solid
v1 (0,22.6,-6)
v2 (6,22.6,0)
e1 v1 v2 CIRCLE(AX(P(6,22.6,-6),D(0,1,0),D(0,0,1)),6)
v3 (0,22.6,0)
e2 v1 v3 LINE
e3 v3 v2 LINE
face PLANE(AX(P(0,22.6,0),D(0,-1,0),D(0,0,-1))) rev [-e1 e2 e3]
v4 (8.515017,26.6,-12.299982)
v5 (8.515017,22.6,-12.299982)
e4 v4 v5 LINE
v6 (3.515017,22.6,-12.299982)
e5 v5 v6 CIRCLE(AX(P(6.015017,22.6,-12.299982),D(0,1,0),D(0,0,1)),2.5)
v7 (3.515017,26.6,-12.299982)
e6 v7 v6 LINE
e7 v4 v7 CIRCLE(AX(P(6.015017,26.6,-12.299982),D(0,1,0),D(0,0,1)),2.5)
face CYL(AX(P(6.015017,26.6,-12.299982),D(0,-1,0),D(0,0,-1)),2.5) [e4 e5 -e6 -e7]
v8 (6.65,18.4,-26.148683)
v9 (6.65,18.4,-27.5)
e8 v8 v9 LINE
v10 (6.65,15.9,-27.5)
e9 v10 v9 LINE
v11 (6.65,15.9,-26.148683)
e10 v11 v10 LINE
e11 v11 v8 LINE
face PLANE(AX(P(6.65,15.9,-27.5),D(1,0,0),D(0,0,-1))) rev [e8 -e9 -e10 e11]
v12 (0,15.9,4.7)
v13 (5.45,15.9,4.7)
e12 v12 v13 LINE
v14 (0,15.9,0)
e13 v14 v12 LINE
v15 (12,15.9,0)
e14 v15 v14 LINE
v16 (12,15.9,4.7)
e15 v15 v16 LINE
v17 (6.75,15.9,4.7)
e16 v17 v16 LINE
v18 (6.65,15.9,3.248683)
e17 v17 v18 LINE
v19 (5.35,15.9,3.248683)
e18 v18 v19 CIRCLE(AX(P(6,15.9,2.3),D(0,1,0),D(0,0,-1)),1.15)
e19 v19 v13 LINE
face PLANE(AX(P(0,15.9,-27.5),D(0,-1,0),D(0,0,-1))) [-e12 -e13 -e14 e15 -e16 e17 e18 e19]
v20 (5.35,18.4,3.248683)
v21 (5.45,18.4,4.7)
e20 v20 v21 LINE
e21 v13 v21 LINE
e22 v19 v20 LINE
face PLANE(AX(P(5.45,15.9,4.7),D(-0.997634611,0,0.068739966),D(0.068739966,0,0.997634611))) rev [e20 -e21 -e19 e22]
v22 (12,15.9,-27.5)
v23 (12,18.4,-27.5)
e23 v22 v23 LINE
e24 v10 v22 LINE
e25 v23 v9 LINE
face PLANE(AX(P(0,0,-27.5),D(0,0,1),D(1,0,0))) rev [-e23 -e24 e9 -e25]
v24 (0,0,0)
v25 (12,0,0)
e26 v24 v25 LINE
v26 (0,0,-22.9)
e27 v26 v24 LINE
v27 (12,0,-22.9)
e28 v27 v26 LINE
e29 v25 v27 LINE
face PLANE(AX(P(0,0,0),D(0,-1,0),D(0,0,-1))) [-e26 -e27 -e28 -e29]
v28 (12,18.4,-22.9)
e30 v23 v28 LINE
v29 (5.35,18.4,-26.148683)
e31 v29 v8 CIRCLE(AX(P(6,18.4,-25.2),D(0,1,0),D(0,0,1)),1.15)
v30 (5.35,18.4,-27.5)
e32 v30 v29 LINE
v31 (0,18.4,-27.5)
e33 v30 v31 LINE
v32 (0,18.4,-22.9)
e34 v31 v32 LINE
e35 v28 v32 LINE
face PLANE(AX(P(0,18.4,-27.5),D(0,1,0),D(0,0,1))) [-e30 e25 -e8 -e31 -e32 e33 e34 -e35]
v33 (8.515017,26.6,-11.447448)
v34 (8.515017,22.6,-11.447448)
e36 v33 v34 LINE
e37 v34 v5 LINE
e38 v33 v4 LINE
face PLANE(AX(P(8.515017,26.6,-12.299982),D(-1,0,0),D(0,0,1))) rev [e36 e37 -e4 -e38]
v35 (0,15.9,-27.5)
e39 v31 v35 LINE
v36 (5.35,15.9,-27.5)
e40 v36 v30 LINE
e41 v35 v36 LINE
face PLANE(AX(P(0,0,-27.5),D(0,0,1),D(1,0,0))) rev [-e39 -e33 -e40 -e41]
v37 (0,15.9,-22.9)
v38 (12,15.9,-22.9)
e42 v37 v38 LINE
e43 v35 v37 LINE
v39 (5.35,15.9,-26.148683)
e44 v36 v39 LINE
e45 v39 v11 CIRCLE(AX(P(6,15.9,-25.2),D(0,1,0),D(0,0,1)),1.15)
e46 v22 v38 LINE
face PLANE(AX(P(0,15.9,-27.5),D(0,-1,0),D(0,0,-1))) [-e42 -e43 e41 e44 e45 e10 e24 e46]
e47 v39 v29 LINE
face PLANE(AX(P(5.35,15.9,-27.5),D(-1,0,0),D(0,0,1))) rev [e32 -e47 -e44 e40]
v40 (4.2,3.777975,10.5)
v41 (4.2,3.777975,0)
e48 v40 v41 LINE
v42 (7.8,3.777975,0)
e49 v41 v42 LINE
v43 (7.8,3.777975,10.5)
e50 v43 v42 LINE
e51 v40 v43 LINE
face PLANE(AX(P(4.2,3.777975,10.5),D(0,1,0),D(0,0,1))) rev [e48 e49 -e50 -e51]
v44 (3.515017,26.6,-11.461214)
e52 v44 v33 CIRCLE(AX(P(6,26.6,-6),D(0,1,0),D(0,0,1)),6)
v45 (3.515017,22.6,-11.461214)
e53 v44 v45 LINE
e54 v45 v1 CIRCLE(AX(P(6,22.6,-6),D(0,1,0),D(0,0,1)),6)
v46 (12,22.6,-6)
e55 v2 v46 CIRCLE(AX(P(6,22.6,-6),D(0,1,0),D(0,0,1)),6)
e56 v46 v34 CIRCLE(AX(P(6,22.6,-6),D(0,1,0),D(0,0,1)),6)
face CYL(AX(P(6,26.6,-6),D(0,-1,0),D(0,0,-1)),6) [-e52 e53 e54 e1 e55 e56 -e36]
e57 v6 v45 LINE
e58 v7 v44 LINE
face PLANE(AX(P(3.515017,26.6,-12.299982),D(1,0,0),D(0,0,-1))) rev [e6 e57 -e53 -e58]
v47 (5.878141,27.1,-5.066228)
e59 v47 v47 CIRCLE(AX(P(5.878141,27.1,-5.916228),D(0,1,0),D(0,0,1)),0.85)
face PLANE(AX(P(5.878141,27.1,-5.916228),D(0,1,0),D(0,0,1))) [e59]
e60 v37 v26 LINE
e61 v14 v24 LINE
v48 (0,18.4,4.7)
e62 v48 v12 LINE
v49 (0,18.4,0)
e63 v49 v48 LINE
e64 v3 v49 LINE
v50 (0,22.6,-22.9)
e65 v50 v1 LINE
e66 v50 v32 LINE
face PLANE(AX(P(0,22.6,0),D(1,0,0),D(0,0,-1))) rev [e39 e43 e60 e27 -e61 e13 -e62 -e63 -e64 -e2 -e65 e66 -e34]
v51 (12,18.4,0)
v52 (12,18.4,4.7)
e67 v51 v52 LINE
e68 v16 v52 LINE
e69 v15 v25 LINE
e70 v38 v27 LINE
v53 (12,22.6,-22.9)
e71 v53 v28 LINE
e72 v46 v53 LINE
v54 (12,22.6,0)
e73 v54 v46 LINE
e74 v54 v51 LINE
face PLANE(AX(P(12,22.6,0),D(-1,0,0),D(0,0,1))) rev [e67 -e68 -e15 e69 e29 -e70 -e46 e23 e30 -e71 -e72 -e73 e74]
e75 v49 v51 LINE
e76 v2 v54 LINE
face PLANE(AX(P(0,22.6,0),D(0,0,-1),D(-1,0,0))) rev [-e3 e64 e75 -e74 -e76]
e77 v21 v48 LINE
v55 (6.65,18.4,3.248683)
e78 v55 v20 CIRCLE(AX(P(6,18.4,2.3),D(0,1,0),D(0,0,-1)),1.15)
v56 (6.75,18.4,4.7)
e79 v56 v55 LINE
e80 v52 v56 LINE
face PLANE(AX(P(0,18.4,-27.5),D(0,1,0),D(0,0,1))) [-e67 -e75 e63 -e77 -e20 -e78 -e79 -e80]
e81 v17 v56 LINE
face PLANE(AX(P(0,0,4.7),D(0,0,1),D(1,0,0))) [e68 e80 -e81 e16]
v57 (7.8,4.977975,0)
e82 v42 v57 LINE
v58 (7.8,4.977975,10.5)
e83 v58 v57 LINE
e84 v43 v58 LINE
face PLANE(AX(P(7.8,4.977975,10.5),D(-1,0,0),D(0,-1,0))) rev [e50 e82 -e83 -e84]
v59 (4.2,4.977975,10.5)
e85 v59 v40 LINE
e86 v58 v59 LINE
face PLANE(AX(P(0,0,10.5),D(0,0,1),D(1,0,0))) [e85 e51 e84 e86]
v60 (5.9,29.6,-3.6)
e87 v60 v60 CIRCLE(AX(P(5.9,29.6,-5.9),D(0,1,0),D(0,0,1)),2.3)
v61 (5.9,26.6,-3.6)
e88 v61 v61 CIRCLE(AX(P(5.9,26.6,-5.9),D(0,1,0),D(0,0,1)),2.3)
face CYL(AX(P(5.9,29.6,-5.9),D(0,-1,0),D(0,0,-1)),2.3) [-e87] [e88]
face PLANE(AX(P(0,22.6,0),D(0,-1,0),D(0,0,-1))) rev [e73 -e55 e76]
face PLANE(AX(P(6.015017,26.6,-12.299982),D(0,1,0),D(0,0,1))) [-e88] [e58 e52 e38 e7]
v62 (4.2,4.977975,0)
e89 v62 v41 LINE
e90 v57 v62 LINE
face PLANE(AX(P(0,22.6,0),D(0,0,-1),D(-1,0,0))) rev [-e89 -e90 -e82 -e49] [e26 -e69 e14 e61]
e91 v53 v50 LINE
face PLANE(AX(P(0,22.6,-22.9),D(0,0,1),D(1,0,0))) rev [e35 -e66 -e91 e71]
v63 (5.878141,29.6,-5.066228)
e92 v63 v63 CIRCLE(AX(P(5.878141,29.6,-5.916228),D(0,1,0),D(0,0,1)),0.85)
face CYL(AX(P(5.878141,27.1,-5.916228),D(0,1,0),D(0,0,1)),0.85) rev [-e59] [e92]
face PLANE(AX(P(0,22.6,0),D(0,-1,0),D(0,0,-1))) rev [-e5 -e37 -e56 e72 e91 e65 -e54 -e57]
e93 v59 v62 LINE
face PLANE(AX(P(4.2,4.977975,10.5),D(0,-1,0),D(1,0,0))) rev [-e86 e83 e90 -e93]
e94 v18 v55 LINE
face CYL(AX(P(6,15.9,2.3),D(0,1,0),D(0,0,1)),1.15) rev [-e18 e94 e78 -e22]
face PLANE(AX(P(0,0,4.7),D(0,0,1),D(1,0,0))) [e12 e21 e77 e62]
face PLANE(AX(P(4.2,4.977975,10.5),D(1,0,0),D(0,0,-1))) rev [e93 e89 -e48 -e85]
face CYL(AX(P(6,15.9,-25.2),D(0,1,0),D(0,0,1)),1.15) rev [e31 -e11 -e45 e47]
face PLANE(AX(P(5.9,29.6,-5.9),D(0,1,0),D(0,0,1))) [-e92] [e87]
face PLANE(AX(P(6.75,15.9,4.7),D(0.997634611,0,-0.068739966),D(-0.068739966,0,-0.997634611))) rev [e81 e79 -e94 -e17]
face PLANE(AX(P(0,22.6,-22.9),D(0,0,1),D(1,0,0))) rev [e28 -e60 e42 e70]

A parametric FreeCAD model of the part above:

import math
import FreeCAD as App
import Part
import Sketcher

doc = App.newDocument("Part")
body = doc.addObject("PartDesign::Body", "Body")

sketch1 = doc.addObject("Sketcher::SketchObject", "Sketch")
body.addObject(sketch1)
sketch1.AttachmentSupport = (doc.XZ_Plane, [""])
sketch1.MapMode = "FlatFace"
sketch1.addGeometry([
    Part.LineSegment(App.Vector(0, -23, 0), App.Vector(0, 0, 0)),
    Part.LineSegment(App.Vector(0, 0, 0), App.Vector(12, 0, 0)),
    Part.LineSegment(App.Vector(12, 0, 0), App.Vector(12, -23, 0)),
    Part.LineSegment(App.Vector(12, -23, 0), App.Vector(0, -23, 0)),
], False)
sketch1.addConstraint([
    Sketcher.Constraint("Coincident", 0, 2, 1, 1),
    Sketcher.Constraint("Coincident", 1, 2, 2, 1),
    Sketcher.Constraint("Coincident", 2, 2, 3, 1),
    Sketcher.Constraint("Coincident", 3, 2, 0, 1),
    Sketcher.Constraint("Vertical", 0),
    Sketcher.Constraint("Horizontal", 1),
    Sketcher.Constraint("Vertical", 2),
    Sketcher.Constraint("Horizontal", 3),
    Sketcher.Constraint("Coincident", 0, 2, -1, 1),
    Sketcher.Constraint("DistanceX", 1, 1, 1, 2, 12.0),
    Sketcher.Constraint("DistanceY", 0, 1, 0, 2, 22.9),
])
pad1 = doc.addObject("PartDesign::Pad", "Pad")
body.addObject(pad1)
pad1.Profile = sketch1
pad1.Length = 22.6
pad1.Reversed = True

sketch2 = doc.addObject("Sketcher::SketchObject", "Sketch001")
body.addObject(sketch2)
sketch2.AttachmentSupport = (doc.XY_Plane, [""])
sketch2.MapMode = "FlatFace"
sketch2.AttachmentOffset = App.Placement(App.Vector(0, 0, 4.7), App.Rotation())
sketch2.addGeometry([
    Part.LineSegment(App.Vector(0, 18.4, 0), App.Vector(0, 15.9, 0)),
    Part.LineSegment(App.Vector(0, 15.9, 0), App.Vector(12, 15.9, 0)),
    Part.LineSegment(App.Vector(12, 15.9, 0), App.Vector(12, 18.4, 0)),
    Part.LineSegment(App.Vector(12, 18.4, 0), App.Vector(0, 18.4, 0)),
], False)
sketch2.addConstraint([
    Sketcher.Constraint("Coincident", 0, 2, 1, 1),
    Sketcher.Constraint("Coincident", 1, 2, 2, 1),
    Sketcher.Constraint("Coincident", 2, 2, 3, 1),
    Sketcher.Constraint("Coincident", 3, 2, 0, 1),
    Sketcher.Constraint("Vertical", 0),
    Sketcher.Constraint("Horizontal", 1),
    Sketcher.Constraint("Vertical", 2),
    Sketcher.Constraint("Horizontal", 3),
    Sketcher.Constraint("PointOnObject", 0, 2, -2),
    Sketcher.Constraint("DistanceX", 1, 1, 1, 2, 12.0),
    Sketcher.Constraint("DistanceY", 0, 2, 0, 1, 2.5),
    Sketcher.Constraint("DistanceY", -1, 1, 0, 2, 15.9),
])
pad2 = doc.addObject("PartDesign::Pad", "Pad001")
body.addObject(pad2)
pad2.Profile = sketch2
pad2.Length = 32.2
pad2.Reversed = True

sketch3 = doc.addObject("Sketcher::SketchObject", "Sketch002")
body.addObject(sketch3)
sketch3.AttachmentSupport = (doc.XZ_Plane, [""])
sketch3.MapMode = "FlatFace"
sketch3.AttachmentOffset = App.Placement(App.Vector(0, 0, -22.6), App.Rotation())
sketch3.addGeometry([
    Part.LineSegment(App.Vector(3.5, -12.3, 0), App.Vector(3.5, -11.5, 0)),
    Part.ArcOfCircle(Part.Circle(App.Vector(6, -6, 0), App.Vector(0, 0, 1), 6), math.radians(-65), math.radians(246)),
    Part.LineSegment(App.Vector(8.5, -11.4, 0), App.Vector(8.5, -12.3, 0)),
    Part.ArcOfCircle(Part.Circle(App.Vector(6, -12.3, 0), App.Vector(0, 0, 1), 2.5), math.radians(180), math.radians(360)),
], False)
sketch3.addConstraint([
    Sketcher.Constraint("Coincident", 0, 2, 1, 2),
    Sketcher.Constraint("Coincident", 1, 1, 2, 1),
    Sketcher.Constraint("Tangent", 2, 2, 3, 2),
    Sketcher.Constraint("Tangent", 3, 1, 0, 1),
    Sketcher.Constraint("Vertical", 0),
    Sketcher.Constraint("Vertical", 2),
    Sketcher.Constraint("Radius", 1, 6.0),
    Sketcher.Constraint("Radius", 3, 2.5),
    Sketcher.Constraint("DistanceX", -1, 1, 1, 3, 6.0),
    Sketcher.Constraint("DistanceY", 1, 3, -1, 1, 6.0),
    Sketcher.Constraint("DistanceY", 0, 1, 0, 2, 0.838768),
    Sketcher.Constraint("DistanceY", 2, 2, 2, 1, 0.852534),
])
pad3 = doc.addObject("PartDesign::Pad", "Pad002")
body.addObject(pad3)
pad3.Profile = sketch3
pad3.Length = 4
pad3.Reversed = True

sketch4 = doc.addObject("Sketcher::SketchObject", "Sketch003")
body.addObject(sketch4)
sketch4.AttachmentSupport = (doc.XZ_Plane, [""])
sketch4.MapMode = "FlatFace"
sketch4.AttachmentOffset = App.Placement(App.Vector(0, 0, -26.6), App.Rotation())
sketch4.addGeometry(Part.Circle(App.Vector(5.9, -5.9, 0), App.Vector(0, 0, 1), 2.3), False)
sketch4.addConstraint([
    Sketcher.Constraint("Diameter", 0, 4.6),
    Sketcher.Constraint("DistanceX", -1, 1, 0, 3, 5.9),
    Sketcher.Constraint("DistanceY", 0, 3, -1, 1, 5.9),
])
pad4 = doc.addObject("PartDesign::Pad", "Pad003")
body.addObject(pad4)
pad4.Profile = sketch4
pad4.Length = 3
pad4.Reversed = True

sketch5 = doc.addObject("Sketcher::SketchObject", "Sketch004")
body.addObject(sketch5)
sketch5.AttachmentSupport = (doc.XZ_Plane, [""])
sketch5.MapMode = "FlatFace"
sketch5.AttachmentOffset = App.Placement(App.Vector(0, 0, -18.4), App.Rotation())
sketch5.addGeometry([
    Part.LineSegment(App.Vector(6.7, -27.5, 0), App.Vector(5.3, -27.5, 0)),
    Part.LineSegment(App.Vector(5.3, -27.5, 0), App.Vector(5.3, -26.1, 0)),
    Part.ArcOfCircle(Part.Circle(App.Vector(6, -25.2, 0), App.Vector(0, 0, 1), 1.1), math.radians(-56), math.radians(236)),
    Part.LineSegment(App.Vector(6.7, -26.1, 0), App.Vector(6.7, -27.5, 0)),
    Part.LineSegment(App.Vector(6.8, 4.7, 0), App.Vector(6.7, 3.2, 0)),
    Part.ArcOfCircle(Part.Circle(App.Vector(6, 2.3, 0), App.Vector(0, 0, 1), 1.1), math.radians(124), math.radians(416)),
    Part.LineSegment(App.Vector(5.3, 3.2, 0), App.Vector(5.5, 4.7, 0)),
    Part.LineSegment(App.Vector(5.5, 4.7, 0), App.Vector(6.8, 4.7, 0)),
], False)
sketch5.addConstraint([
    Sketcher.Constraint("Coincident", 0, 2, 1, 1),
    Sketcher.Constraint("Coincident", 1, 2, 2, 2),
    Sketcher.Constraint("Coincident", 2, 1, 3, 1),
    Sketcher.Constraint("Coincident", 3, 2, 0, 1),
    Sketcher.Constraint("Coincident", 4, 2, 5, 2),
    Sketcher.Constraint("Coincident", 5, 1, 6, 1),
    Sketcher.Constraint("Coincident", 6, 2, 7, 1),
    Sketcher.Constraint("Coincident", 7, 2, 4, 1),
    Sketcher.Constraint("Horizontal", 0),
    Sketcher.Constraint("Vertical", 1),
    Sketcher.Constraint("Vertical", 3),
    Sketcher.Constraint("Horizontal", 7),
    Sketcher.Constraint("Equal", 2, 5),
    Sketcher.Constraint("Parallel", 4, 6),
    Sketcher.Constraint("Horizontal", 1, 2, 2, 1),
    Sketcher.Constraint("Horizontal", 4, 2, 5, 1),
    Sketcher.Constraint("Vertical", 2, 3, 5, 3),
    Sketcher.Constraint("Vertical", 3, 2, 4, 2),
    Sketcher.Constraint("Radius", 2, 1.15),
    Sketcher.Constraint("DistanceX", 0, 2, 0, 1, 1.3),
    Sketcher.Constraint("DistanceX", -1, 1, 2, 3, 6.0),
    Sketcher.Constraint("DistanceY", 2, 3, -1, 1, 25.2),
    Sketcher.Constraint("DistanceY", -1, 1, 5, 3, 2.3),
    Sketcher.Constraint("DistanceY", 0, 2, -1, 1, 27.5),
    Sketcher.Constraint("DistanceY", -1, 1, 6, 2, 4.7),
    Sketcher.Constraint("DistanceX", 5, 1, 6, 2, 0.1),
])
pocket1 = doc.addObject("PartDesign::Pocket", "Pocket")
body.addObject(pocket1)
pocket1.Profile = sketch5
pocket1.Length = 2.5
pocket1.Reversed = True

sketch6 = doc.addObject("Sketcher::SketchObject", "Sketch005")
body.addObject(sketch6)
sketch6.AttachmentSupport = (doc.XZ_Plane, [""])
sketch6.MapMode = "FlatFace"
sketch6.AttachmentOffset = App.Placement(App.Vector(0, 0, -29.6), App.Rotation())
sketch6.addGeometry(Part.Circle(App.Vector(5.9, -5.9, 0), App.Vector(0, 0, 1), 0.8), False)
sketch6.addConstraint([
    Sketcher.Constraint("Diameter", 0, 1.7),
    Sketcher.Constraint("DistanceX", -1, 1, 0, 3, 5.878141),
    Sketcher.Constraint("DistanceY", 0, 3, -1, 1, 5.916228),
])
pocket2 = doc.addObject("PartDesign::Pocket", "Pocket001")
body.addObject(pocket2)
pocket2.Profile = sketch6
pocket2.Length = 2.5
pocket2.Reversed = True

sketch7 = doc.addObject("Sketcher::SketchObject", "Sketch006")
body.addObject(sketch7)
sketch7.AttachmentSupport = (doc.XY_Plane, [""])
sketch7.MapMode = "FlatFace"
sketch7.addGeometry([
    Part.LineSegment(App.Vector(4.2, 5, 0), App.Vector(4.2, 3.8, 0)),
    Part.LineSegment(App.Vector(4.2, 3.8, 0), App.Vector(7.8, 3.8, 0)),
    Part.LineSegment(App.Vector(7.8, 3.8, 0), App.Vector(7.8, 5, 0)),
    Part.LineSegment(App.Vector(7.8, 5, 0), App.Vector(4.2, 5, 0)),
], False)
sketch7.addConstraint([
    Sketcher.Constraint("Coincident", 0, 2, 1, 1),
    Sketcher.Constraint("Coincident", 1, 2, 2, 1),
    Sketcher.Constraint("Coincident", 2, 2, 3, 1),
    Sketcher.Constraint("Coincident", 3, 2, 0, 1),
    Sketcher.Constraint("Vertical", 0),
    Sketcher.Constraint("Horizontal", 1),
    Sketcher.Constraint("Vertical", 2),
    Sketcher.Constraint("Horizontal", 3),
    Sketcher.Constraint("DistanceX", 1, 1, 1, 2, 3.6),
    Sketcher.Constraint("DistanceY", 0, 2, 0, 1, 1.2),
    Sketcher.Constraint("DistanceX", -1, 1, 0, 2, 4.2),
    Sketcher.Constraint("DistanceY", -1, 1, 0, 2, 3.777975),
])
pad5 = doc.addObject("PartDesign::Pad", "Pad004")
body.addObject(pad5)
pad5.Profile = sketch7
pad5.Length = 10.5

doc.recompute()
